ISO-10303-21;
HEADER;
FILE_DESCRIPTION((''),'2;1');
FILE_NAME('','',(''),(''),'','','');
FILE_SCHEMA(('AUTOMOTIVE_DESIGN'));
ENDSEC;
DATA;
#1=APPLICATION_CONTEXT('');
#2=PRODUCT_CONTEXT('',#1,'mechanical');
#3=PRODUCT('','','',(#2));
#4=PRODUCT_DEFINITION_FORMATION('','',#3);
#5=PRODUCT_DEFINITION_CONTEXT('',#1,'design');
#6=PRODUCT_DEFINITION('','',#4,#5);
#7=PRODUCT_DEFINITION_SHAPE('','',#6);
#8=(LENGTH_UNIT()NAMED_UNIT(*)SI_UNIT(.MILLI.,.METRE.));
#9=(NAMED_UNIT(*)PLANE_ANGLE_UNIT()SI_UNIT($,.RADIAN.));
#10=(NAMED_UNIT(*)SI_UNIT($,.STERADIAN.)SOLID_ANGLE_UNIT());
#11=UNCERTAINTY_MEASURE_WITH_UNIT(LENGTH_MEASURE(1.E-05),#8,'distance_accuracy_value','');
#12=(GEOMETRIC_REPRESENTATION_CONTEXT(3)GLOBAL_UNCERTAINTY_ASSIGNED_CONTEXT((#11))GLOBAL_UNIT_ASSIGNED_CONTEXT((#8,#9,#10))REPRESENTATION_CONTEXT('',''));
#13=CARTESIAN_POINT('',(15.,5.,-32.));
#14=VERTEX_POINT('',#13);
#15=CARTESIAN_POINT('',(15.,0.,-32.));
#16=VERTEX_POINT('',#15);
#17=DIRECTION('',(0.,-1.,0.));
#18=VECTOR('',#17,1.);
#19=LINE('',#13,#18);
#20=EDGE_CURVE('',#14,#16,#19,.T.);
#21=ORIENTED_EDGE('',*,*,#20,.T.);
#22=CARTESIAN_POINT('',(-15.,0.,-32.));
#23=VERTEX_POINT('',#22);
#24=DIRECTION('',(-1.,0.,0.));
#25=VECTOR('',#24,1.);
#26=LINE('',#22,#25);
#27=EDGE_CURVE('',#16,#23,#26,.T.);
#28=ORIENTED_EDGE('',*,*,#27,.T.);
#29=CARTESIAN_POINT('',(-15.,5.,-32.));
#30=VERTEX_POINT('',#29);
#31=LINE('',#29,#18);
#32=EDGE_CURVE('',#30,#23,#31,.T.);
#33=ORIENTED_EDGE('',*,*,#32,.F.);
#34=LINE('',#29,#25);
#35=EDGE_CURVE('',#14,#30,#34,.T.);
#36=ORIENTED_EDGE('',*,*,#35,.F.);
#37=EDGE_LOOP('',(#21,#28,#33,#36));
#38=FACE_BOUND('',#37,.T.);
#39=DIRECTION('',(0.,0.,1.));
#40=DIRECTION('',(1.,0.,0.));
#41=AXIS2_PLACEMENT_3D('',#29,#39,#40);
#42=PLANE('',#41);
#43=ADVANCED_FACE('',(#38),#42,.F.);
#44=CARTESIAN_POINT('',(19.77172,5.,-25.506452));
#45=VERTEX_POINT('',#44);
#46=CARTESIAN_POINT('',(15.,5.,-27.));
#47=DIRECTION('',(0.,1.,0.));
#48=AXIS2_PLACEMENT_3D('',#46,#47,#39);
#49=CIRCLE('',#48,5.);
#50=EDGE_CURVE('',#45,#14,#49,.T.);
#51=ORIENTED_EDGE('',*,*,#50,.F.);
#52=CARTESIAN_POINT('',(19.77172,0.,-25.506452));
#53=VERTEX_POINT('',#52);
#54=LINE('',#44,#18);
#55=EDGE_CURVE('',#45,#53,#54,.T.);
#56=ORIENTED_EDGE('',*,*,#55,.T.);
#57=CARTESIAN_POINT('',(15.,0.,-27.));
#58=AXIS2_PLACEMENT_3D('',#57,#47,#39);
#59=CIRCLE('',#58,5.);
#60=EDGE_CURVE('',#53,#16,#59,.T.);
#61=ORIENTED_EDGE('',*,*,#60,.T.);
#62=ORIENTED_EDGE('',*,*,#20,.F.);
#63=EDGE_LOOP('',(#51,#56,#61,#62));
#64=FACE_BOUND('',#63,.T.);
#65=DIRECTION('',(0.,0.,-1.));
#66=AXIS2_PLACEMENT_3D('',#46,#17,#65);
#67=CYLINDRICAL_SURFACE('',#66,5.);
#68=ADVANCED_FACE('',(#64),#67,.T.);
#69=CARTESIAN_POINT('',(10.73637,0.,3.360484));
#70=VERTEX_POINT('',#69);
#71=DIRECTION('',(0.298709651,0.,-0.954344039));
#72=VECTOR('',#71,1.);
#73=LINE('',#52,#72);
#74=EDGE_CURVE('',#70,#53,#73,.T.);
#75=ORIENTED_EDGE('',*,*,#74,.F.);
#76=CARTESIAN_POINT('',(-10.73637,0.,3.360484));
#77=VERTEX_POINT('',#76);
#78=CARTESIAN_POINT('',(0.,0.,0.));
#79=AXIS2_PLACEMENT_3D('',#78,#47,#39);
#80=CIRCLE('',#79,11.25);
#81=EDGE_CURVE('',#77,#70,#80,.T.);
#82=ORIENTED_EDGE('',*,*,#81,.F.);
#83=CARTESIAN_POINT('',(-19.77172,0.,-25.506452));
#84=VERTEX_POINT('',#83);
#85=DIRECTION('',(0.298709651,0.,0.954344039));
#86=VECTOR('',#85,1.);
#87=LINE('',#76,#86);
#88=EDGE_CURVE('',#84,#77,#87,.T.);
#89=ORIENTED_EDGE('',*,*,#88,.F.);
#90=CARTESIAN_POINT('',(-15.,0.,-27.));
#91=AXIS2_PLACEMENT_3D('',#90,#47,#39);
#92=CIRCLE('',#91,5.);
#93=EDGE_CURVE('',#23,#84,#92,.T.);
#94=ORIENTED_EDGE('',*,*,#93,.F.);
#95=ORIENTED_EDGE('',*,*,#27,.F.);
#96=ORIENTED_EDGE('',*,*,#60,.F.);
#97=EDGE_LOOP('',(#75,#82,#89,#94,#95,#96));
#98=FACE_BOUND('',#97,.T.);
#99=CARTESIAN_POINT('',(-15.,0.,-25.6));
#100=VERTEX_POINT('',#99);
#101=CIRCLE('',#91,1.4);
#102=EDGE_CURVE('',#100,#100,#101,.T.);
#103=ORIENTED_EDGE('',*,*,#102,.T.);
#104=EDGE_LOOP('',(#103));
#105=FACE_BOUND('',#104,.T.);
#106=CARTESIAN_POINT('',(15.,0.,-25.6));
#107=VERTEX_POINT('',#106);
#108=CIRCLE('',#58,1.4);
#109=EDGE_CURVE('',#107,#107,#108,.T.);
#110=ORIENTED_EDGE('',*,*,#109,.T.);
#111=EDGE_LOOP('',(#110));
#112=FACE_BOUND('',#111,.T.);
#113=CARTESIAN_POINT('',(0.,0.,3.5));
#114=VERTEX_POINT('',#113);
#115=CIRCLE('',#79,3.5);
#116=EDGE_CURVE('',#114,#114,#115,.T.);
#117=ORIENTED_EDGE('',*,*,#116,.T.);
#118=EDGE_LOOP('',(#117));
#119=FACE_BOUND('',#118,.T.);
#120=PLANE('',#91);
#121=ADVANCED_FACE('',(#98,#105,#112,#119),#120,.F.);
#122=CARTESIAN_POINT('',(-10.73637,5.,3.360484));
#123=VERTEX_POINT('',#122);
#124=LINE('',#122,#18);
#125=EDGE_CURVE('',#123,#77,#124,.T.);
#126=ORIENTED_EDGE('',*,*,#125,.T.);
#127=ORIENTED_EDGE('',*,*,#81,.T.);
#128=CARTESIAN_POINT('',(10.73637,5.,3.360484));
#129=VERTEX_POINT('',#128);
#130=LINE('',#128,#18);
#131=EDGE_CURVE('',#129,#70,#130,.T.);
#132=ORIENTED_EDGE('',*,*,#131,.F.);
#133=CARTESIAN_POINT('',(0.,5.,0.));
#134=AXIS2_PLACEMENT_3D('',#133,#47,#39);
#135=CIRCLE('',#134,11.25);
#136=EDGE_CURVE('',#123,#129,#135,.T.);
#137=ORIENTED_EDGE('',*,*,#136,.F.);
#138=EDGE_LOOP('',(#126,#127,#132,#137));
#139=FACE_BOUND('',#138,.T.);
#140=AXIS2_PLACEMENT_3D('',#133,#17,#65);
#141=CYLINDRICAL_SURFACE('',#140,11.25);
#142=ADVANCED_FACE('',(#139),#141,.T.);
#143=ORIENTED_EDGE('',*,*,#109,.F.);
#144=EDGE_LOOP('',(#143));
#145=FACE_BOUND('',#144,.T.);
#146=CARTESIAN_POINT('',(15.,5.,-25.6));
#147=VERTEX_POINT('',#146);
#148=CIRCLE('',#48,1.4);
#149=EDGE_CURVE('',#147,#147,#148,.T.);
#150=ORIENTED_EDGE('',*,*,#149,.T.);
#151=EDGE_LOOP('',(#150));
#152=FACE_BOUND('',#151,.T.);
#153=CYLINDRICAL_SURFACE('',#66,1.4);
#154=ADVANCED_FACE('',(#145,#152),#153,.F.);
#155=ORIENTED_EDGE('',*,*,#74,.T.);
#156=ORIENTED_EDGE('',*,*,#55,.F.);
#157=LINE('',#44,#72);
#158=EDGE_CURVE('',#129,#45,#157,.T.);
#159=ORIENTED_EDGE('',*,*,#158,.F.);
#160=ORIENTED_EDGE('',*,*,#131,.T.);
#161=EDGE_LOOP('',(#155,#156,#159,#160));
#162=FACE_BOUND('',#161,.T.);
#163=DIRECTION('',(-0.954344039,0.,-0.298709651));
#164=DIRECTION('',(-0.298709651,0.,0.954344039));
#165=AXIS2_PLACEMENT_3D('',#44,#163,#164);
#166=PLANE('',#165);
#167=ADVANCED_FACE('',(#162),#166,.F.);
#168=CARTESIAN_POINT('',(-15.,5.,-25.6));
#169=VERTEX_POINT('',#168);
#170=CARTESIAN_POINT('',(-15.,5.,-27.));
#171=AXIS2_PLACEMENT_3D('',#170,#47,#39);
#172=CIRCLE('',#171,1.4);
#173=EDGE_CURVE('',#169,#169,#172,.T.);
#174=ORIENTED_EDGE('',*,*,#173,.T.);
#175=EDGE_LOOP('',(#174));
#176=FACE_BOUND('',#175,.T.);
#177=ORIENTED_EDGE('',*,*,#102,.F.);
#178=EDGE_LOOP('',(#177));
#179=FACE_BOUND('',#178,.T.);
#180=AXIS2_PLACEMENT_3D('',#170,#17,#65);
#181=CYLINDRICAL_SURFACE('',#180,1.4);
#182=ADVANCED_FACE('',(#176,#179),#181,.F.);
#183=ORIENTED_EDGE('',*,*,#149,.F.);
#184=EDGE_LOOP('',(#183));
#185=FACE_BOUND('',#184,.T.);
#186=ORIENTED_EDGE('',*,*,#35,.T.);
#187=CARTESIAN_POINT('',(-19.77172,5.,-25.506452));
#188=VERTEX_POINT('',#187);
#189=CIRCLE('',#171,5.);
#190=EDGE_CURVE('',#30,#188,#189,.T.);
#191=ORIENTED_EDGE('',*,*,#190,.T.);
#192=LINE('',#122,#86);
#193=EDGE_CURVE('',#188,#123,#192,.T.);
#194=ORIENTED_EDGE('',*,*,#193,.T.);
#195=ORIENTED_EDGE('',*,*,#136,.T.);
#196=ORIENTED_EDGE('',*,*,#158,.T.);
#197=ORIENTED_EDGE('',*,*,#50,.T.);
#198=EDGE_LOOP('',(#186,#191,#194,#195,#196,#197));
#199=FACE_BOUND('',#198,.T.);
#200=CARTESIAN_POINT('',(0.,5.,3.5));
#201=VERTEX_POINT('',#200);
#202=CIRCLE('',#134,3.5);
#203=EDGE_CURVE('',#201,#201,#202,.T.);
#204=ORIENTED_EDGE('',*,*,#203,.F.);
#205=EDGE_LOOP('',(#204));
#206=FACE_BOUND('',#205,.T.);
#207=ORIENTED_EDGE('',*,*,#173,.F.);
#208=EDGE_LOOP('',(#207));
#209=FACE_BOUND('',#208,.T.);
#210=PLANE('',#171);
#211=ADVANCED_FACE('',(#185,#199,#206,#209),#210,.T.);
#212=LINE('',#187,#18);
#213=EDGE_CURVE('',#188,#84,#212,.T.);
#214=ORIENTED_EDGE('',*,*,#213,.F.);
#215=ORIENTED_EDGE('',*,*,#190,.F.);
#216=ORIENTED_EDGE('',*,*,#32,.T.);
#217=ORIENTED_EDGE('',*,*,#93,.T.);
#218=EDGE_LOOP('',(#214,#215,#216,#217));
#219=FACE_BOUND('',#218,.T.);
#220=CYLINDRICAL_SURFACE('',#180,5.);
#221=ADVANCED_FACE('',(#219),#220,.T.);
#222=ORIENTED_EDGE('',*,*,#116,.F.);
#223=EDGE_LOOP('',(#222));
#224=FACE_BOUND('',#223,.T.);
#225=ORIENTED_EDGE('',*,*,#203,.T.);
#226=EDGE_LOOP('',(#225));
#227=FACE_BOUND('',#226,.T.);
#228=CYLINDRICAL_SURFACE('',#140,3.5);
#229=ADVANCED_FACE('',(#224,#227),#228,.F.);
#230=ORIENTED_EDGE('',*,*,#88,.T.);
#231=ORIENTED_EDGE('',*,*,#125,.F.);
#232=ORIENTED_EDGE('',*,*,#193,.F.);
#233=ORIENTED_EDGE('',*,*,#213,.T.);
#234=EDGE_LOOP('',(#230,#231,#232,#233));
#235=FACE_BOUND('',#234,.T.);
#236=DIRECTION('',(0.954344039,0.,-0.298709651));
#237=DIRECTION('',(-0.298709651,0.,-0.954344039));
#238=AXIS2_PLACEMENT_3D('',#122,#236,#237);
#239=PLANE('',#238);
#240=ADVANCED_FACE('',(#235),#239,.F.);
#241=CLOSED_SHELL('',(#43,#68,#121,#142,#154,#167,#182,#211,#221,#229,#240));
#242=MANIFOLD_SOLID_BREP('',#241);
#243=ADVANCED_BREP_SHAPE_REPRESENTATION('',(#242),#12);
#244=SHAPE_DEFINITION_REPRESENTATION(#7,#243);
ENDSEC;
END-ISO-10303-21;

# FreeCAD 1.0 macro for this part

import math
import FreeCAD as App
import Part
import Sketcher
from FreeCAD import Vector
Q = App.Units.Quantity

doc = App.newDocument("Part")
params = doc.addObject("Spreadsheet::Sheet", "Params")
for row, (alias, value) in enumerate([
    ("sketch1_diameter", "7 mm"),
    ("sketch1_radius", "5 mm"),
    ("sketch1_diameter2", "2.8 mm"),
    ("sketch1_width", "30 mm"),
    ("sketch1_radius2", "11.25 mm"),
    ("pad1_length", "5 mm"),
], start=1):
    params.set(f"A{row}", alias)
    params.set(f"B{row}", "=" + value)
    params.setAlias(f"B{row}", alias)

body = doc.addObject("PartDesign::Body", "Body")

# Sketch on XZ plane
sketch1 = doc.addObject("Sketcher::SketchObject", "Sketch")
body.addObject(sketch1)
sketch1.AttachmentSupport = (doc.XZ_Plane, [""])
sketch1.MapMode = "FlatFace"
sketch1.addGeometry([
    Part.LineSegment(Vector(15, -32, 0), Vector(-15, -32, 0)),  # 0
    Part.ArcOfCircle(Part.Circle(Vector(-15, -27, 0), Vector(0, 0, 1), 5), math.radians(162.619882), math.radians(270)),  # 1
    Part.LineSegment(Vector(-19.77172, -25.506452, 0), Vector(-10.73637, 3.360484, 0)),  # 2
    Part.ArcOfCircle(Part.Circle(Vector(0, 0, 0), Vector(0, 0, 1), 11.25), math.radians(17.380118), math.radians(162.619882)),  # 3
    Part.LineSegment(Vector(10.73637, 3.360484, 0), Vector(19.77172, -25.506452, 0)),  # 4
    Part.ArcOfCircle(Part.Circle(Vector(15, -27, 0), Vector(0, 0, 1), 5), math.radians(-90), math.radians(17.380118)),  # 5
    Part.Circle(Vector(0, 0, 0), Vector(0, 0, 1), 3.5),  # 6
    Part.Circle(Vector(15, -27, 0), Vector(0, 0, 1), 1.4),  # 7
    Part.Circle(Vector(-15, -27, 0), Vector(0, 0, 1), 1.4),  # 8
], False)
sketch1.addConstraint([
    Sketcher.Constraint("Tangent", 0, 2, 1, 2),
    Sketcher.Constraint("Tangent", 1, 1, 2, 1),
    Sketcher.Constraint("Tangent", 2, 2, 3, 2),
    Sketcher.Constraint("Tangent", 3, 1, 4, 1),
    Sketcher.Constraint("Tangent", 4, 2, 5, 2),
    Sketcher.Constraint("Tangent", 5, 1, 0, 1),
    Sketcher.Constraint("Horizontal", 0),
    Sketcher.Constraint("Coincident", 3, 3, -1, 1),
    Sketcher.Constraint("Coincident", 6, 3, -1, 1),
    Sketcher.Constraint("Coincident", 7, 3, 5, 3),
    Sketcher.Constraint("Coincident", 8, 3, 1, 3),
    Sketcher.Constraint("Equal", 1, 5),
    Sketcher.Constraint("Equal", 7, 8),
    Sketcher.Constraint("Horizontal", 2, 2, 3, 1),
    Sketcher.Constraint("Diameter", 6, Q("7 mm")),
    Sketcher.Constraint("Radius", 1, Q("5 mm")),
    Sketcher.Constraint("Diameter", 7, Q("2.8 mm")),
    Sketcher.Constraint("DistanceX", 0, 2, 0, 1, Q("30 mm")),
    Sketcher.Constraint("Radius", 3, Q("11.25 mm")),
    Sketcher.Constraint("DistanceY", 1, 3, -1, 1, Q("27 mm")),
])
sketch1.setExpression("Constraints[14]", "Params.sketch1_diameter")
sketch1.setExpression("Constraints[15]", "Params.sketch1_radius")
sketch1.setExpression("Constraints[16]", "Params.sketch1_diameter2")
sketch1.setExpression("Constraints[17]", "Params.sketch1_width")
sketch1.setExpression("Constraints[18]", "Params.sketch1_radius2")
pad1 = doc.addObject("PartDesign::Pad", "Pad")
body.addObject(pad1)
pad1.Profile = sketch1
pad1.setExpression("Length", "Params.pad1_length")
pad1.Reversed = True

doc.recompute()
